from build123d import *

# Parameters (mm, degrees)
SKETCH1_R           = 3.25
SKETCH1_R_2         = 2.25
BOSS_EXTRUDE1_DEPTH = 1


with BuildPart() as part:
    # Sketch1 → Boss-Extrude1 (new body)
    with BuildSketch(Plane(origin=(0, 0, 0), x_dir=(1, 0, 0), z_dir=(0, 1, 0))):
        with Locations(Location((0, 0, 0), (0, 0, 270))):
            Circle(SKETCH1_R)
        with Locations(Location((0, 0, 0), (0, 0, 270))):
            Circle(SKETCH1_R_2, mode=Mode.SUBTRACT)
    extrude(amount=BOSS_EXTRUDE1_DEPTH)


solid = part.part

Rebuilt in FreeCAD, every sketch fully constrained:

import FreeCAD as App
import Part
import Sketcher
from FreeCAD import Vector
Q = App.Units.Quantity

doc = App.newDocument("Part")
params = doc.addObject("Spreadsheet::Sheet", "Params")
for row, (alias, value) in enumerate([
    ("sketch1_diameter", "6.5 mm"),
    ("sketch1_diameter2", "4.5 mm"),
    ("pad1_length", "1 mm"),
], start=1):
    params.set(f"A{row}", alias)
    params.set(f"B{row}", "=" + value)
    params.setAlias(f"B{row}", alias)

body = doc.addObject("PartDesign::Body", "Body")

sketch1 = doc.addObject("Sketcher::SketchObject", "Sketch")
body.addObject(sketch1)
sketch1.AttachmentSupport = (doc.XZ_Plane, [""])
sketch1.MapMode = "FlatFace"
sketch1.addGeometry([
    Part.Circle(Vector(0, 0, 0), Vector(0, 0, 1), 3.25),
    Part.Circle(Vector(0, 0, 0), Vector(0, 0, 1), 2.25),
], False)
sketch1.addConstraint([
    Sketcher.Constraint("Coincident", 0, 3, -1, 1),
    Sketcher.Constraint("Coincident", 1, 3, -1, 1),
    Sketcher.Constraint("Diameter", 0, Q("6.5 mm")),
    Sketcher.Constraint("Diameter", 1, Q("4.5 mm")),
])
sketch1.setExpression("Constraints[2]", "Params.sketch1_diameter")
sketch1.setExpression("Constraints[3]", "Params.sketch1_diameter2")
pad1 = doc.addObject("PartDesign::Pad", "Pad")
body.addObject(pad1)
pad1.Profile = sketch1
pad1.setExpression("Length", "Params.pad1_length")
pad1.Reversed = True

doc.recompute()
